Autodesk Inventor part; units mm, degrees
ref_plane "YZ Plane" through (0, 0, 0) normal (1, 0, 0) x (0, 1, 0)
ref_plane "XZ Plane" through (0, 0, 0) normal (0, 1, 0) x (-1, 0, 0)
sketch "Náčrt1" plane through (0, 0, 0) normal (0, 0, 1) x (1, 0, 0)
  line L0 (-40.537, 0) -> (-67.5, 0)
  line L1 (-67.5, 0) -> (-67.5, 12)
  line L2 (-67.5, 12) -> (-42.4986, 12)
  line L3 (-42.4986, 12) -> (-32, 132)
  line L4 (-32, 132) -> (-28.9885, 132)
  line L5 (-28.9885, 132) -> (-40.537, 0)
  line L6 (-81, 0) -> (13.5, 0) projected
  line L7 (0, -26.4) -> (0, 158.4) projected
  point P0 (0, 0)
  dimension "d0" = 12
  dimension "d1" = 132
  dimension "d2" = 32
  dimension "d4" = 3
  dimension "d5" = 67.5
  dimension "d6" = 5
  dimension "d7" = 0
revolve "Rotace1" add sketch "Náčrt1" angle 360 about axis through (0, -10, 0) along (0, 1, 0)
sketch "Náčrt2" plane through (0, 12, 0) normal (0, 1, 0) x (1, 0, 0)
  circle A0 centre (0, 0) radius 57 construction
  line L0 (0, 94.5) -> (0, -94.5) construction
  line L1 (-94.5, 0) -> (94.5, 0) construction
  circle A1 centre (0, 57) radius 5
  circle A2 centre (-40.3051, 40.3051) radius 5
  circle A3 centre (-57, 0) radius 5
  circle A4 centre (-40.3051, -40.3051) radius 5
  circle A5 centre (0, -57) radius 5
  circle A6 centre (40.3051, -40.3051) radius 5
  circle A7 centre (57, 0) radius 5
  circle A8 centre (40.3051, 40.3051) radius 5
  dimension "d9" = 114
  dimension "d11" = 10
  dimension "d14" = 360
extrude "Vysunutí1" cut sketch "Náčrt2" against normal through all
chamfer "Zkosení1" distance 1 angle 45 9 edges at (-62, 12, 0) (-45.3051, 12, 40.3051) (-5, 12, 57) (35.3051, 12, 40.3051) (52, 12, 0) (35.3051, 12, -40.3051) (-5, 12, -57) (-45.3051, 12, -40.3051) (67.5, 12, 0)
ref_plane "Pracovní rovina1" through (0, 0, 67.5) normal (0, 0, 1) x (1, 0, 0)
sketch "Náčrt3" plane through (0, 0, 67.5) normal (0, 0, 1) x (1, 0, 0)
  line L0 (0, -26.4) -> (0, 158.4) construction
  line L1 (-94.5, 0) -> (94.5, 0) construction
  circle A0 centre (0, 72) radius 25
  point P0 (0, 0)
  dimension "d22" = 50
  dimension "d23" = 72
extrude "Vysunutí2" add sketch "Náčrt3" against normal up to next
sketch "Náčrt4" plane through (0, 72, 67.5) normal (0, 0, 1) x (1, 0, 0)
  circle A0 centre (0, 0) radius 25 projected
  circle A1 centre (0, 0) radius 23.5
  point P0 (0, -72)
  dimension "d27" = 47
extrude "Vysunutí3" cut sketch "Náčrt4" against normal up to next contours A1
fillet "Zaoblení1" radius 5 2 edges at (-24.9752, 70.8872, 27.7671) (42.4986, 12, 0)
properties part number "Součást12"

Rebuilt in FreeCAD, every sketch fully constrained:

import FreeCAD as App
import Part
import Sketcher

V = App.Vector
Q = App.Units.Quantity


def edges_at(feature, points):
    """Names of the edges that pass closest to the given points."""
    edges = feature.Shape.Edges
    near = lambda p: min(range(len(edges)), key=lambda i: edges[i].distToShape(Part.Vertex(*p))[0])
    return sorted({f"Edge{near(p) + 1}" for p in points})


def add_polygon(sketch, points):
    """Adds a closed chain of lines whose ends are joined by coincident constraints."""
    first, n = sketch.GeometryCount, len(points)
    for a, b in zip(points, points[1:] + points[:1]):
        sketch.addGeometry(Part.LineSegment(App.Vector(*a, 0), App.Vector(*b, 0)), False)
    for i in range(n):
        sketch.addConstraint(Sketcher.Constraint("Coincident", first + i, 2, first + (i + 1) % n, 1))

doc = App.newDocument("Part")
body = doc.addObject("PartDesign::Body", "Body")

# Sketch on XY plane
sketch1 = body.newObject("Sketcher::SketchObject", "Sketch")
sketch1.AttachmentSupport = (doc.getObject("XY_Plane"), [""])
sketch1.MapMode = "FlatFace"
add_polygon(sketch1, [(-67.5, 0), (-40.5, 0), (-29, 132), (-32, 132), (-42.5, 12), (-67.5, 12)])  # lines 0-5
sketch1.addConstraint(Sketcher.Constraint("Horizontal", 0))
sketch1.addConstraint(Sketcher.Constraint("Horizontal", 2))
sketch1.addConstraint(Sketcher.Constraint("Horizontal", 4))
sketch1.addConstraint(Sketcher.Constraint("Vertical", 5))
sketch1.addConstraint(Sketcher.Constraint("PointOnObject", 0, 2, -1))
sketch1.addConstraint(Sketcher.Constraint("Parallel", 1, 3))
sketch1.addConstraint(Sketcher.Constraint("DistanceY", 5, 2, 5, 1, 12.0))
sketch1.addConstraint(Sketcher.Constraint("DistanceY", -1, 1, 1, 2, 132.0))
sketch1.addConstraint(Sketcher.Constraint("DistanceX", 2, 2, -1, 1, 32.0))
sketch1.addConstraint(Sketcher.Constraint("DistanceX", 4, 2, -1, 1, 67.5))
sketch1.addConstraint(Sketcher.Constraint("Angle", 1, Q("85 deg")))
sketch1.addConstraint(Sketcher.Constraint("DistanceX", 0, 1, 0, 2, 26.963))
revolution = body.newObject("PartDesign::Revolution", "Revolution")
revolution.Profile = sketch1
revolution.ReferenceAxis = (sketch1, ["V_Axis"])
revolution.Angle = 360

# Sketch on XZ plane
sketch2 = body.newObject("Sketcher::SketchObject", "Sketch001")
sketch2.AttachmentSupport = (doc.getObject("XZ_Plane"), [""])
sketch2.MapMode = "FlatFace"
sketch2.AttachmentOffset = App.Placement(V(0, 0, -12), App.Rotation())
sketch2.addGeometry(Part.Circle(V(0, -57, 0), V(0, 0, 1), 5), False)
sketch2.addGeometry(Part.Circle(V(-40, -40, 0), V(0, 0, 1), 5), False)
sketch2.addGeometry(Part.Circle(V(-57, 0, 0), V(0, 0, 1), 5), False)
sketch2.addGeometry(Part.Circle(V(-40, 40, 0), V(0, 0, 1), 5), False)
sketch2.addGeometry(Part.Circle(V(0, 57, 0), V(0, 0, 1), 5), False)
sketch2.addGeometry(Part.Circle(V(40, 40, 0), V(0, 0, 1), 5), False)
sketch2.addGeometry(Part.Circle(V(57, 0, 0), V(0, 0, 1), 5), False)
sketch2.addGeometry(Part.Circle(V(40, -40, 0), V(0, 0, 1), 5), False)
sketch2.addConstraint(Sketcher.Constraint("Equal", 0, 1))
sketch2.addConstraint(Sketcher.Constraint("Equal", 1, 2))
sketch2.addConstraint(Sketcher.Constraint("Equal", 2, 3))
sketch2.addConstraint(Sketcher.Constraint("Equal", 3, 4))
sketch2.addConstraint(Sketcher.Constraint("Equal", 4, 5))
sketch2.addConstraint(Sketcher.Constraint("Equal", 5, 6))
sketch2.addConstraint(Sketcher.Constraint("Equal", 6, 7))
sketch2.addConstraint(Sketcher.Constraint("Symmetric", 0, 3, 4, 3, -1, 1))
sketch2.addConstraint(Sketcher.Constraint("Symmetric", 1, 3, 5, 3, -1, 1))
sketch2.addConstraint(Sketcher.Constraint("Symmetric", 2, 3, 6, 3, -1, 1))
sketch2.addConstraint(Sketcher.Constraint("Symmetric", 3, 3, 7, 3, -1, 1))
sketch2.addConstraint(Sketcher.Constraint("Symmetric", 3, 3, 5, 3, -2))
sketch2.addConstraint(Sketcher.Constraint("PointOnObject", 0, 3, -2))
sketch2.addConstraint(Sketcher.Constraint("PointOnObject", 2, 3, -1))
sketch2.addConstraint(Sketcher.Constraint("Diameter", 0, 10.0))
sketch2.addConstraint(Sketcher.Constraint("DistanceY", 0, 3, 4, 3, 114.0))
sketch2.addConstraint(Sketcher.Constraint("DistanceX", 2, 3, -1, 1, 57.0))
sketch2.addConstraint(Sketcher.Constraint("DistanceX", 1, 3, -1, 1, 40.305))
sketch2.addConstraint(Sketcher.Constraint("DistanceY", 1, 3, -1, 1, 40.305))
pocket1 = body.newObject("PartDesign::Pocket", "Pocket")
pocket1.Profile = sketch2
pocket1.Type = "ThroughAll"
pocket1.Reversed = True
doc.recompute()

chamfer = body.newObject("PartDesign::Chamfer", "Chamfer")
chamfer.Base = (pocket1, edges_at(pocket1, [
    (-62, 12, 0),
    (-45.305, 12, 40.305),
    (-5, 12, 57),
    (35.305, 12, 40.305),
    (52, 12, 0),
    (35.305, 12, -40.305),
    (-5, 12, -57),
    (-45.305, 12, -40.305),
    (67.5, 12, 0),
]))
chamfer.Size = 1

# Sketch on XY plane
sketch3 = body.newObject("Sketcher::SketchObject", "Sketch002")
sketch3.AttachmentSupport = (doc.getObject("XY_Plane"), [""])
sketch3.MapMode = "FlatFace"
sketch3.AttachmentOffset = App.Placement(V(0, 0, 67.5), App.Rotation())
sketch3.addGeometry(Part.Circle(V(0, 72, 0), V(0, 0, 1), 25), False)
sketch3.addConstraint(Sketcher.Constraint("PointOnObject", 0, 3, -2))
sketch3.addConstraint(Sketcher.Constraint("Diameter", 0, 50.0))
sketch3.addConstraint(Sketcher.Constraint("DistanceY", -1, 1, 0, 3, 72.0))
pad1 = body.newObject("PartDesign::Pad", "Pad")
pad1.Profile = sketch3
pad1.Type = "UpToFirst"
pad1.Reversed = True

# Sketch on XY plane
sketch4 = body.newObject("Sketcher::SketchObject", "Sketch003")
sketch4.AttachmentSupport = (doc.getObject("XY_Plane"), [""])
sketch4.MapMode = "FlatFace"
sketch4.AttachmentOffset = App.Placement(V(0, 0, 67.5), App.Rotation())
sketch4.addGeometry(Part.Circle(V(0, 72, 0), V(0, 0, 1), 24), False)
sketch4.addConstraint(Sketcher.Constraint("PointOnObject", 0, 3, -2))
sketch4.addConstraint(Sketcher.Constraint("Diameter", 0, 47.0))
sketch4.addConstraint(Sketcher.Constraint("DistanceY", -1, 1, 0, 3, 72.0))
pocket2 = body.newObject("PartDesign::Pocket", "Pocket001")
pocket2.Profile = sketch4
pocket2.Type = "UpToFirst"
doc.recompute()

fillet = body.newObject("PartDesign::Fillet", "Fillet")
fillet.Base = (pocket2, edges_at(pocket2, [(-24.975, 70.887, 27.767), (42.499, 12, 0)]))
fillet.Radius = 5

doc.recompute()
